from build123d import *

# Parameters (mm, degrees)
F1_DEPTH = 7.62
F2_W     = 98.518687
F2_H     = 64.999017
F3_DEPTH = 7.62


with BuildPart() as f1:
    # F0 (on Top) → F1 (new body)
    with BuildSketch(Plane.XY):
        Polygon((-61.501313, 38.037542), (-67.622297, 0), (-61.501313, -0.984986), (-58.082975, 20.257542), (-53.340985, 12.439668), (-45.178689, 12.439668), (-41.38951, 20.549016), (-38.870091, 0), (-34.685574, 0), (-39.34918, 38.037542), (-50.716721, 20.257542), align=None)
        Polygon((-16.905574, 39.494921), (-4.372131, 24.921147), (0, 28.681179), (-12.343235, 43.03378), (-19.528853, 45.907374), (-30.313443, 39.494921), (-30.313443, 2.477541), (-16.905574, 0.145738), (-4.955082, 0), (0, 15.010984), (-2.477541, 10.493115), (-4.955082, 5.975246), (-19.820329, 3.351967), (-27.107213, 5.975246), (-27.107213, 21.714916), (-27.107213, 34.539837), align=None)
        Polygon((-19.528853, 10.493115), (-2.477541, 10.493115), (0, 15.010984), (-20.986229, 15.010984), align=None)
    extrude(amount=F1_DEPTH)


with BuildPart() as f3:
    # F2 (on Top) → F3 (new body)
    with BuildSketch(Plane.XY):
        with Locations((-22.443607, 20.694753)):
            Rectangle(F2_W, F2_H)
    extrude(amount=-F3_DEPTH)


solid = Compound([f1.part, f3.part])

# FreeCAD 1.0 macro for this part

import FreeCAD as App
import Part
import Sketcher

V = App.Vector
Q = App.Units.Quantity

doc = App.newDocument("Part")
params = doc.addObject("Spreadsheet::Sheet", "Params")
for row, (alias, value) in enumerate([
    ("pad1_length", "0.3 in"),
    ("pad2_length", "0.3 in"),
], start=1):
    params.set(f"A{row}", alias)
    params.set(f"B{row}", "=" + value)
    params.setAlias(f"B{row}", alias)

body = doc.addObject("PartDesign::Body", "Body")
body.AllowCompound = True

sketch1 = body.newObject("Sketcher::SketchObject", "Sketch")
sketch1.AttachmentSupport = (doc.getObject("XY_Plane"), [""])
sketch1.MapMode = "FlatFace"
sketch1.addGeometry([
    Part.LineSegment(V(-61.5, 38, 0), V(-67.6, 0, 0)),
    Part.LineSegment(V(-67.6, 0, 0), V(-61.5, -1, 0)),
    Part.LineSegment(V(-61.5, -1, 0), V(-58.1, 20.3, 0)),
    Part.LineSegment(V(-58.1, 20.3, 0), V(-53.3, 12.4, 0)),
    Part.LineSegment(V(-53.3, 12.4, 0), V(-45.2, 12.4, 0)),
    Part.LineSegment(V(-45.2, 12.4, 0), V(-41.4, 20.5, 0)),
    Part.LineSegment(V(-41.4, 20.5, 0), V(-38.9, 0, 0)),
    Part.LineSegment(V(-38.9, 0, 0), V(-34.7, 0, 0)),
    Part.LineSegment(V(-34.7, 0, 0), V(-39.3, 38, 0)),
    Part.LineSegment(V(-39.3, 38, 0), V(-50.7, 20.3, 0)),
    Part.LineSegment(V(-50.7, 20.3, 0), V(-61.5, 38, 0)),
    Part.LineSegment(V(-16.9, 39.5, 0), V(-4.4, 24.9, 0)),
    Part.LineSegment(V(-4.4, 24.9, 0), V(0, 28.7, 0)),
    Part.LineSegment(V(0, 28.7, 0), V(-12.3, 43, 0)),
    Part.LineSegment(V(-12.3, 43, 0), V(-19.5, 45.9, 0)),
    Part.LineSegment(V(-19.5, 45.9, 0), V(-30.3, 39.5, 0)),
    Part.LineSegment(V(-30.3, 39.5, 0), V(-30.3, 2.5, 0)),
    Part.LineSegment(V(-30.3, 2.5, 0), V(-16.9, 0.1, 0)),
    Part.LineSegment(V(-16.9, 0.1, 0), V(-5, 0, 0)),
    Part.LineSegment(V(-5, 0, 0), V(0, 15, 0)),
    Part.LineSegment(V(0, 15, 0), V(-21, 15, 0)),
    Part.LineSegment(V(-21, 15, 0), V(-19.5, 10.5, 0)),
    Part.LineSegment(V(-19.5, 10.5, 0), V(-2.5, 10.5, 0)),
    Part.LineSegment(V(-2.5, 10.5, 0), V(-5, 6, 0)),
    Part.LineSegment(V(-5, 6, 0), V(-19.8, 3.4, 0)),
    Part.LineSegment(V(-19.8, 3.4, 0), V(-27.1, 6, 0)),
    Part.LineSegment(V(-27.1, 6, 0), V(-27.1, 34.5, 0)),
    Part.LineSegment(V(-27.1, 34.5, 0), V(-16.9, 39.5, 0)),
], False)
sketch1.addConstraint([
    Sketcher.Constraint("Coincident", 0, 2, 1, 1),
    Sketcher.Constraint("Coincident", 1, 2, 2, 1),
    Sketcher.Constraint("Coincident", 2, 2, 3, 1),
    Sketcher.Constraint("Coincident", 3, 2, 4, 1),
    Sketcher.Constraint("Coincident", 4, 2, 5, 1),
    Sketcher.Constraint("Coincident", 5, 2, 6, 1),
    Sketcher.Constraint("Coincident", 6, 2, 7, 1),
    Sketcher.Constraint("Coincident", 7, 2, 8, 1),
    Sketcher.Constraint("Coincident", 8, 2, 9, 1),
    Sketcher.Constraint("Coincident", 9, 2, 10, 1),
    Sketcher.Constraint("Coincident", 10, 2, 0, 1),
    Sketcher.Constraint("Coincident", 11, 2, 12, 1),
    Sketcher.Constraint("Coincident", 12, 2, 13, 1),
    Sketcher.Constraint("Coincident", 13, 2, 14, 1),
    Sketcher.Constraint("Coincident", 14, 2, 15, 1),
    Sketcher.Constraint("Coincident", 15, 2, 16, 1),
    Sketcher.Constraint("Coincident", 16, 2, 17, 1),
    Sketcher.Constraint("Coincident", 17, 2, 18, 1),
    Sketcher.Constraint("Coincident", 18, 2, 19, 1),
    Sketcher.Constraint("Coincident", 19, 2, 20, 1),
    Sketcher.Constraint("Coincident", 20, 2, 21, 1),
    Sketcher.Constraint("Coincident", 21, 2, 22, 1),
    Sketcher.Constraint("Coincident", 22, 2, 23, 1),
    Sketcher.Constraint("Coincident", 23, 2, 24, 1),
    Sketcher.Constraint("Coincident", 24, 2, 25, 1),
    Sketcher.Constraint("Coincident", 25, 2, 26, 1),
    Sketcher.Constraint("Coincident", 26, 2, 27, 1),
    Sketcher.Constraint("Coincident", 27, 2, 11, 1),
    Sketcher.Constraint("Horizontal", 4),
    Sketcher.Constraint("Horizontal", 7),
    Sketcher.Constraint("Vertical", 16),
    Sketcher.Constraint("Horizontal", 20),
    Sketcher.Constraint("Horizontal", 22),
    Sketcher.Constraint("Vertical", 26),
    Sketcher.Constraint("PointOnObject", 0, 2, -1),
    Sketcher.Constraint("PointOnObject", 6, 2, -1),
    Sketcher.Constraint("PointOnObject", 12, 2, -2),
    Sketcher.Constraint("PointOnObject", 18, 2, -1),
    Sketcher.Constraint("PointOnObject", 19, 2, -2),
    Sketcher.Constraint("Perpendicular", 0, 1),
    Sketcher.Constraint("Perpendicular", 1, 2),
    Sketcher.Constraint("Parallel", 6, 8),
    Sketcher.Constraint("Parallel", 3, 10),
    Sketcher.Constraint("Perpendicular", 11, 12),
    Sketcher.Constraint("Perpendicular", 12, 13),
    Sketcher.Constraint("Horizontal", 2, 2, 9, 2),
    Sketcher.Constraint("Horizontal", 8, 2, 10, 2),
    Sketcher.Constraint("Horizontal", 23, 2, 25, 2),
    Sketcher.Constraint("Horizontal", 15, 2, 27, 2),
    Sketcher.Constraint("Vertical", 1, 2, 10, 2),
    Sketcher.Constraint("Vertical", 14, 2, 21, 2),
    Sketcher.Constraint("Vertical", 18, 2, 23, 2),
    Sketcher.Constraint("Vertical", 17, 2, 27, 2),
    Sketcher.Constraint("DistanceY", 2, 2, 8, 2, Q("0.7 in")),
    Sketcher.Constraint("DistanceX", 7, 2, 17, 2, Q("0.7 in")),
    Sketcher.Constraint("DistanceX", 20, 2, 20, 1, Q("20.986229 mm")),
    Sketcher.Constraint("DistanceY", 16, 2, 16, 1, Q("37.01738 mm")),
    Sketcher.Constraint("DistanceY", 26, 1, 26, 2, Q("28.564591 mm")),
    Sketcher.Constraint("DistanceY", 12, 2, 13, 2, Q("14.352601 mm")),
    Sketcher.Constraint("DistanceX", 20, 2, 11, 2, Q("16.614098 mm")),
    Sketcher.Constraint("DistanceX", 20, 2, 24, 2, Q("1.1659 mm")),
    Sketcher.Constraint("Distance", 1, Q("6.199729 mm")),
    Sketcher.Constraint("Distance", 2, Q("21.515809 mm")),
    Sketcher.Constraint("Distance", 3, Q("9.143611 mm")),
    Sketcher.Constraint("Distance", 10, Q("20.795091 mm")),
    Sketcher.Constraint("Distance", 15, Q("12.546989 mm")),
    Sketcher.Constraint("Distance", 18, Q("11.951381 mm")),
    Sketcher.Constraint("Distance", 19, Q("15.807672 mm")),
    Sketcher.Constraint("Distance", 24, Q("15.094938 mm")),
    Sketcher.Constraint("DistanceX", 4, 1, 4, 2, Q("8.162296 mm")),
    Sketcher.Constraint("DistanceX", 7, 1, 7, 2, Q("4.184517 mm")),
    Sketcher.Constraint("DistanceX", 22, 1, 22, 2, Q("17.051312 mm")),
    Sketcher.Constraint("DistanceX", 4, 2, -1, 1, Q("45.178689 mm")),
    Sketcher.Constraint("DistanceX", 5, 2, -1, 1, Q("41.38951 mm")),
    Sketcher.Constraint("DistanceX", 6, 2, -1, 1, Q("38.870091 mm")),
    Sketcher.Constraint("DistanceX", 8, 2, -1, 1, Q("39.34918 mm")),
    Sketcher.Constraint("DistanceY", -1, 1, 12, 2, Q("28.681179 mm")),
    Sketcher.Constraint("DistanceY", -1, 1, 15, 2, Q("39.494921 mm")),
    Sketcher.Constraint("DistanceX", 22, 2, -1, 1, Q("2.477541 mm")),
    Sketcher.Constraint("DistanceY", 8, 2, 14, 2, Q("7.869832 mm")),
    Sketcher.Constraint("DistanceY", 17, 2, 11, 2, Q("24.775409 mm")),
    Sketcher.Constraint("DistanceY", 21, 2, 20, 2, Q("4.517869 mm")),
    Sketcher.Constraint("DistanceY", 23, 2, 22, 2, Q("4.517869 mm")),
    Sketcher.Constraint("DistanceX", 16, 2, 25, 2, Q("3.20623 mm")),
])
pad1 = body.newObject("PartDesign::Pad", "Pad")
pad1.Profile = sketch1
pad1.setExpression("Length", "Params.pad1_length")
body2 = doc.addObject("PartDesign::Body", "Body001")

sketch2 = body2.newObject("Sketcher::SketchObject", "Sketch001")
sketch2.AttachmentSupport = (doc.getObject("XY_Plane001"), [""])
sketch2.MapMode = "FlatFace"
sketch2.addGeometry([
    Part.LineSegment(V(-72, 53, 0), V(-72, -12, 0)),
    Part.LineSegment(V(-72, -12, 0), V(27, -12, 0)),
    Part.LineSegment(V(27, -12, 0), V(27, 53, 0)),
    Part.LineSegment(V(27, 53, 0), V(-72, 53, 0)),
], False)
sketch2.addConstraint([
    Sketcher.Constraint("Coincident", 0, 2, 1, 1),
    Sketcher.Constraint("Coincident", 1, 2, 2, 1),
    Sketcher.Constraint("Coincident", 2, 2, 3, 1),
    Sketcher.Constraint("Coincident", 3, 2, 0, 1),
    Sketcher.Constraint("Vertical", 0),
    Sketcher.Constraint("Horizontal", 1),
    Sketcher.Constraint("Vertical", 2),
    Sketcher.Constraint("Horizontal", 3),
    Sketcher.Constraint("DistanceX", 1, 1, 1, 2, Q("98.518687 mm")),
    Sketcher.Constraint("DistanceY", 0, 2, 0, 1, Q("64.999017 mm")),
    Sketcher.Constraint("DistanceX", 0, 2, -1, 1, Q("71.702951 mm")),
    Sketcher.Constraint("DistanceY", -1, 1, 2, 2, Q("53.194262 mm")),
])
pad2 = body2.newObject("PartDesign::Pad", "Pad001")
pad2.Profile = sketch2
pad2.setExpression("Length", "Params.pad2_length")
pad2.Reversed = True

doc.recompute()
